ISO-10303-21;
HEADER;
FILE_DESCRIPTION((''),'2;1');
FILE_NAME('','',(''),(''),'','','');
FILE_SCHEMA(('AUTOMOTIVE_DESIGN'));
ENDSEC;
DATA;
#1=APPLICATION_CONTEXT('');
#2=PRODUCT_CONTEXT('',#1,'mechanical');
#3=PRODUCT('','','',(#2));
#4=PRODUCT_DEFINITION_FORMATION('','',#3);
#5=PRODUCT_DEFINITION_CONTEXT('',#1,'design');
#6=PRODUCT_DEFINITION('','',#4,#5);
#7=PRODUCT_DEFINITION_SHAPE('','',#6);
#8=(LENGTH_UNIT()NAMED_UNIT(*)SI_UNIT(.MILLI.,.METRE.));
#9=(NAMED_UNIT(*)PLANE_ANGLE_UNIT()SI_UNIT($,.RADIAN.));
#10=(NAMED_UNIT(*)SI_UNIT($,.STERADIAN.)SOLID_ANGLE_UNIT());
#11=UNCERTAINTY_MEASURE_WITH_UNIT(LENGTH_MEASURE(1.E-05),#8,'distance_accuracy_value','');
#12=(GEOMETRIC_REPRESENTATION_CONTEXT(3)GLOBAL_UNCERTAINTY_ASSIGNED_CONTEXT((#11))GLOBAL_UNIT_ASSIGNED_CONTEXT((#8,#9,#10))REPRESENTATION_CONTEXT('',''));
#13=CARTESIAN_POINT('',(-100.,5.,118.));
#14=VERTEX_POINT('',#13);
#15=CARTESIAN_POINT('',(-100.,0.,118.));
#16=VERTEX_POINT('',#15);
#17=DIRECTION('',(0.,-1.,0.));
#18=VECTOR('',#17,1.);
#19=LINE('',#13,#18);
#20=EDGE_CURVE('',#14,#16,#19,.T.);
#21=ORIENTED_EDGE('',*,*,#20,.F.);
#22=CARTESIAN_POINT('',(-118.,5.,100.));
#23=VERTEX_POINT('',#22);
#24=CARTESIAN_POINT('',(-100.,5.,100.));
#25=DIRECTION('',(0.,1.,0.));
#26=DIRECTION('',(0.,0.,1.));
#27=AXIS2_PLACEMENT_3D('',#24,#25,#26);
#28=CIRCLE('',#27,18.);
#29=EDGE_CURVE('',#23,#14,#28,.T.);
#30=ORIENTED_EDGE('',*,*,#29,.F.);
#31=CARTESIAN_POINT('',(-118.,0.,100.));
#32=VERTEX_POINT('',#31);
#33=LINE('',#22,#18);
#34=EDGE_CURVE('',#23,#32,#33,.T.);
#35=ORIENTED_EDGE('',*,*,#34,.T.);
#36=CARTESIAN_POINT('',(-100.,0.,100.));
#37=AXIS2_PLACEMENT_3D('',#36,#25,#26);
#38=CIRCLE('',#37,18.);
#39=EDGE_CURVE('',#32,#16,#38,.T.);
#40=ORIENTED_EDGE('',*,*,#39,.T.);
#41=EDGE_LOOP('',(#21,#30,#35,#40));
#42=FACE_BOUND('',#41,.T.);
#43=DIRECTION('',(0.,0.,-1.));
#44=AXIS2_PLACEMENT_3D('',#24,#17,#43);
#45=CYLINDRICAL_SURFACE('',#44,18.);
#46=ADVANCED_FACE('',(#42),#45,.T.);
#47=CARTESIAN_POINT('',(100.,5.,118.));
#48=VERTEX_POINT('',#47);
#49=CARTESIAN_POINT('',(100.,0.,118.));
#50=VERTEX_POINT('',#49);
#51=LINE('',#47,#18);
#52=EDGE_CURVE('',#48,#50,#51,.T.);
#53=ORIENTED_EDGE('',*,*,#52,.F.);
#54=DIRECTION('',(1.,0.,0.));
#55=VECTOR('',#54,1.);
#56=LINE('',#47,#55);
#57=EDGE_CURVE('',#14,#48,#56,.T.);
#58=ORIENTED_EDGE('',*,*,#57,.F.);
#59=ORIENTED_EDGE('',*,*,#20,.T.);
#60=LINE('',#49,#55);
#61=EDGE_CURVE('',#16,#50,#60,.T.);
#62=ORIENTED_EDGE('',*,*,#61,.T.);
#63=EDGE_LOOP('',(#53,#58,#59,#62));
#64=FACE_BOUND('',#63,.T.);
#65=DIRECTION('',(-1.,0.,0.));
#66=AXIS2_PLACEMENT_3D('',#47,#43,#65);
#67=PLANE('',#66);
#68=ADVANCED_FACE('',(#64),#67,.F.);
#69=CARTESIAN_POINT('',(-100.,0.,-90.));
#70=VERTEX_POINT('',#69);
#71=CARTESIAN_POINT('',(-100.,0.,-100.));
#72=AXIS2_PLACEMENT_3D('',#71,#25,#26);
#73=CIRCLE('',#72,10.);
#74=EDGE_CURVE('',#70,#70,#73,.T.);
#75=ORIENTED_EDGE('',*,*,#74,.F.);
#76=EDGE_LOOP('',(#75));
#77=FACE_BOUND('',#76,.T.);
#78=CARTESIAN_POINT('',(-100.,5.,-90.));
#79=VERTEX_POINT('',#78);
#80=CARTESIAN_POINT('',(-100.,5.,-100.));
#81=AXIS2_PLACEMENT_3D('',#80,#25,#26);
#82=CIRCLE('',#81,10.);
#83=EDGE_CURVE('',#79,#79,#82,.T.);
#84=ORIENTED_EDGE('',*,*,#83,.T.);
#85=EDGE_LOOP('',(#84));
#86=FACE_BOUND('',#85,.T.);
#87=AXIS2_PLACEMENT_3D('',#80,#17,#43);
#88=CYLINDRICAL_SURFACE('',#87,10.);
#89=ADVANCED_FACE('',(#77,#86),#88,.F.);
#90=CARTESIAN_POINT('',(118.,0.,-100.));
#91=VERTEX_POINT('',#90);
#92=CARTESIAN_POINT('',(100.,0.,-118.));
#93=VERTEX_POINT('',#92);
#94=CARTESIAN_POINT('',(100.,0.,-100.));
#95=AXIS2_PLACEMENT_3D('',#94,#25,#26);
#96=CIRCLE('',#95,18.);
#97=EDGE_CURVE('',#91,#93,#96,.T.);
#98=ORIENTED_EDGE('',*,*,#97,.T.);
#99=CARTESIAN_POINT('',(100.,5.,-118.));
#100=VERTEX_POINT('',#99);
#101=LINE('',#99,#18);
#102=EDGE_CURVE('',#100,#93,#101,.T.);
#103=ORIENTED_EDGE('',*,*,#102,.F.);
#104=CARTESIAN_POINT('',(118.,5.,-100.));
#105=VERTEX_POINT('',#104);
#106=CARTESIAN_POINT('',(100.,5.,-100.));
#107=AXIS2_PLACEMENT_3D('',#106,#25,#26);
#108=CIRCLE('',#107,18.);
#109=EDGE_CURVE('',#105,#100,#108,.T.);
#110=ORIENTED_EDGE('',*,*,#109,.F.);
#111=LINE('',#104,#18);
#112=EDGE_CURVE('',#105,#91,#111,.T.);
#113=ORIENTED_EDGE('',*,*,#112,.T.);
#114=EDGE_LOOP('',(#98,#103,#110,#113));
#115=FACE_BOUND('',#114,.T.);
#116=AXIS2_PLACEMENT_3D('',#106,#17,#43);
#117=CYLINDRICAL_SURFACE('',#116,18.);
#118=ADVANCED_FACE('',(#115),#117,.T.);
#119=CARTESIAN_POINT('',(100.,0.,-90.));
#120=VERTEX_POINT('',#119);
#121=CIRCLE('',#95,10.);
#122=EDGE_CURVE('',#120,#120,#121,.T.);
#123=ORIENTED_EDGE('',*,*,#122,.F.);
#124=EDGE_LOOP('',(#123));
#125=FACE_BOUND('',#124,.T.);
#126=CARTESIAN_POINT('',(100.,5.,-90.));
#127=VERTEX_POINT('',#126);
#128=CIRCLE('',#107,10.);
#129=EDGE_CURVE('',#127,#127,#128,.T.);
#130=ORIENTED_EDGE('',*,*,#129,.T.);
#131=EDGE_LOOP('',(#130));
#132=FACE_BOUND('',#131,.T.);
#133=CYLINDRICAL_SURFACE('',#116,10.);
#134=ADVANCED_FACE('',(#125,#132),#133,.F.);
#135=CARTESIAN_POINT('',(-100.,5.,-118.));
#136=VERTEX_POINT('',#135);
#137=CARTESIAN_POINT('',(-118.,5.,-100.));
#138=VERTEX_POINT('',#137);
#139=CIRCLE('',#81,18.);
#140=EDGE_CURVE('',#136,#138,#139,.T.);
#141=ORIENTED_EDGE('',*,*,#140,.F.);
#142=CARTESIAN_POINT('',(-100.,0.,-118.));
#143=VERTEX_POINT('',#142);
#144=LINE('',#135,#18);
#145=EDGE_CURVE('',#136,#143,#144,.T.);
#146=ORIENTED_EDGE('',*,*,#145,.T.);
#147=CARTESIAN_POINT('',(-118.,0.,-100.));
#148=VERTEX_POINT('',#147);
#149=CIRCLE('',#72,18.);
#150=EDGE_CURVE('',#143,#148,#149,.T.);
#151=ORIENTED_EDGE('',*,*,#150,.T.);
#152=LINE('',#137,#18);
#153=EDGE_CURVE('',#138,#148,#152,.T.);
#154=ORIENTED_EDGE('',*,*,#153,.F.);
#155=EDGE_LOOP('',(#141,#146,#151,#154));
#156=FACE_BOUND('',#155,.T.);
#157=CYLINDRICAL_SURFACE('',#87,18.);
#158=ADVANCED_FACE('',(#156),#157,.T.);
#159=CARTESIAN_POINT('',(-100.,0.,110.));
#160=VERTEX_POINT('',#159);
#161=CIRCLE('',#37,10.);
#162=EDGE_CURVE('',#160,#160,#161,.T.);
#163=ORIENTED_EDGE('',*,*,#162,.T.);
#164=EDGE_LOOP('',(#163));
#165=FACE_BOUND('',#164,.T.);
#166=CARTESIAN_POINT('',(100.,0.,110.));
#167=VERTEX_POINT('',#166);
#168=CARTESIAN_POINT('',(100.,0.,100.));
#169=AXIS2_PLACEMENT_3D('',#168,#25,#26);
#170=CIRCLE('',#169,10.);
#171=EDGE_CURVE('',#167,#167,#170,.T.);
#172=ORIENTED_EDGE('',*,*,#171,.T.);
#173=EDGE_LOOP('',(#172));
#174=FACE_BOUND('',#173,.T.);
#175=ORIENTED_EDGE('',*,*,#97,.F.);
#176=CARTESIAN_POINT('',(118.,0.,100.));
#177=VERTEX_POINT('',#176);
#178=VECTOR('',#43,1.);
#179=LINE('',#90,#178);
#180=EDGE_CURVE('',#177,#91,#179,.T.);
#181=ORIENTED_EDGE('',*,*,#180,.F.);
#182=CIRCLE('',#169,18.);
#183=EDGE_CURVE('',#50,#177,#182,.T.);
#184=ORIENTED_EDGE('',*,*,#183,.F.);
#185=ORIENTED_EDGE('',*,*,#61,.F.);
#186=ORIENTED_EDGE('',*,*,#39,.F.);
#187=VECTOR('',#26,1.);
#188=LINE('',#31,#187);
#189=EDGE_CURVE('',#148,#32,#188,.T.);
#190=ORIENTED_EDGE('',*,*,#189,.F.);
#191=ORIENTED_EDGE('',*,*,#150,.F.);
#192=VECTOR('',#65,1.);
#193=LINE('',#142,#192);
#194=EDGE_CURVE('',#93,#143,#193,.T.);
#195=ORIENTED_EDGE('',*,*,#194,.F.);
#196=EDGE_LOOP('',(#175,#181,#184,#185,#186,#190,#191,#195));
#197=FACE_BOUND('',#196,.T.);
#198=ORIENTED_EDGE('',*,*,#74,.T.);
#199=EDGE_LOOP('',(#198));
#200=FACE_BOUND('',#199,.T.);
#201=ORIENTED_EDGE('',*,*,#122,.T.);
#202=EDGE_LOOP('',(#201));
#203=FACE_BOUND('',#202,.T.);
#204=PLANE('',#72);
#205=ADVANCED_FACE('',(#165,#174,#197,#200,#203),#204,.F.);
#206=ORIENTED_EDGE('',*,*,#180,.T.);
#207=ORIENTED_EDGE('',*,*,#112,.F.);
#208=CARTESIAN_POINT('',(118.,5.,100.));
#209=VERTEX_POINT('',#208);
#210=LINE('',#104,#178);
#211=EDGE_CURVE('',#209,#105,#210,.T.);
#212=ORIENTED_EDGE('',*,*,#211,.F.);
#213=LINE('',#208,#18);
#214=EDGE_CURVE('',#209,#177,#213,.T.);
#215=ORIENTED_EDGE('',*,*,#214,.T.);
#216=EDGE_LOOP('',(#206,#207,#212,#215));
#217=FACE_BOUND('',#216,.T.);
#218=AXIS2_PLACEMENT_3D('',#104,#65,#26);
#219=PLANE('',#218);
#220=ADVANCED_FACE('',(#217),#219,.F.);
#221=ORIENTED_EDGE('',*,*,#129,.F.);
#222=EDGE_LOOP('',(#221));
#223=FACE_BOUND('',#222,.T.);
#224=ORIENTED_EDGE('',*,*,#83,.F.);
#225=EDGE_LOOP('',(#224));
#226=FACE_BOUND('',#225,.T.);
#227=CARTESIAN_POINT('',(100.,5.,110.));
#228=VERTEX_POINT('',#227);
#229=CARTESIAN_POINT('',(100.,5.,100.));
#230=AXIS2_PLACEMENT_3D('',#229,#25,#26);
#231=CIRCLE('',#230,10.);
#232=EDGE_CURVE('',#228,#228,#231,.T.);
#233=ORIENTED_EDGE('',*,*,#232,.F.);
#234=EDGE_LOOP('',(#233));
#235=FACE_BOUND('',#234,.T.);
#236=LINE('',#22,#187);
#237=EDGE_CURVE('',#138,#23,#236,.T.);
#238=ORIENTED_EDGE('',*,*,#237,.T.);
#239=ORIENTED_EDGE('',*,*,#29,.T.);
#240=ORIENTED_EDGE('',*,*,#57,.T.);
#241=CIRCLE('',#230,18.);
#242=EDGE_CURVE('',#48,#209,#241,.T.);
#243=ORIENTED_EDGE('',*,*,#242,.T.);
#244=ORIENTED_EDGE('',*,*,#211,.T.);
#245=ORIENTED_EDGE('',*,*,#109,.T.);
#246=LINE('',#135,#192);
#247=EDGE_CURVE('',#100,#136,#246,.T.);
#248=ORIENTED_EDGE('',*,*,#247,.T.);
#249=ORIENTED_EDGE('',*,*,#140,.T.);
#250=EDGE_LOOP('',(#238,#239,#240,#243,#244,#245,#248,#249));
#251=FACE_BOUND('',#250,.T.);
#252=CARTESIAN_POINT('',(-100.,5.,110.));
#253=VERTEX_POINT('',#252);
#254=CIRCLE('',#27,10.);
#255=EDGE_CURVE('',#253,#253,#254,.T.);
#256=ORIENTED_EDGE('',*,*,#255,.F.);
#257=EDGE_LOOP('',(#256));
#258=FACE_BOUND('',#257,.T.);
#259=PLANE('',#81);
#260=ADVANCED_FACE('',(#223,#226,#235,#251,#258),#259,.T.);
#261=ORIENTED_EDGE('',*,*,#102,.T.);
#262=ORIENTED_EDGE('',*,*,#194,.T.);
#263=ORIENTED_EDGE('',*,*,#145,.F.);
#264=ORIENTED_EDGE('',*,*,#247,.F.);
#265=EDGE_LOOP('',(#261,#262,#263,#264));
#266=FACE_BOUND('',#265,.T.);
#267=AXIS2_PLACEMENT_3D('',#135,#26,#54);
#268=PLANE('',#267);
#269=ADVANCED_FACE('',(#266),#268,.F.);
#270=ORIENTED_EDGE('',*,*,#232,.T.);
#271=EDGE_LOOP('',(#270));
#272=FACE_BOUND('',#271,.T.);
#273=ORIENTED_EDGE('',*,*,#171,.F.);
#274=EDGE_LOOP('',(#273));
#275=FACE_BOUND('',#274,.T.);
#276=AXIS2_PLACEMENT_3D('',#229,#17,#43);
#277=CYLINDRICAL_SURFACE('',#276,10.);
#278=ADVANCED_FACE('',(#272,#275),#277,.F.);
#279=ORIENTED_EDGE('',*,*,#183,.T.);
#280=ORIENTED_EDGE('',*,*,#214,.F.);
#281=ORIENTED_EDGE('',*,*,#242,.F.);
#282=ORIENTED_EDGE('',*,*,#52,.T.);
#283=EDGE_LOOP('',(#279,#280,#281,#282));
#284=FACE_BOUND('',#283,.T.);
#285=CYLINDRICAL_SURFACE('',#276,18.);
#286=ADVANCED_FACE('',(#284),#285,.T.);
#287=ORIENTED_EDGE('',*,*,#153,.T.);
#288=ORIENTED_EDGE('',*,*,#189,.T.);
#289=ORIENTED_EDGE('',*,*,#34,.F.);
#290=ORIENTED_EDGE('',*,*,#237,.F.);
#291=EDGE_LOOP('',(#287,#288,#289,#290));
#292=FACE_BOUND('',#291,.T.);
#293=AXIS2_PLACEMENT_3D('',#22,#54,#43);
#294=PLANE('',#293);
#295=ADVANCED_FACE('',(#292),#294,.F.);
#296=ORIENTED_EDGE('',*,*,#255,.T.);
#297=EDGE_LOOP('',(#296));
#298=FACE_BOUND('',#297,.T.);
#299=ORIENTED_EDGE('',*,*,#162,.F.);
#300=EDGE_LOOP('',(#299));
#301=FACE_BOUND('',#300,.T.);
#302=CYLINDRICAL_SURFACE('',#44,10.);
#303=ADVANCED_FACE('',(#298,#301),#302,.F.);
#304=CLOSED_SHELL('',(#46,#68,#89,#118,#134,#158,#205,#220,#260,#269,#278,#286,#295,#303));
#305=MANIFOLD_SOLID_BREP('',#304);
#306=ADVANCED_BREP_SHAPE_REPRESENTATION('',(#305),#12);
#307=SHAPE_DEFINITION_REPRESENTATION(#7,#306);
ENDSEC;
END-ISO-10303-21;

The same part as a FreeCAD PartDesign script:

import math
import FreeCAD as App
import Part
import Sketcher

V = App.Vector
Q = App.Units.Quantity

doc = App.newDocument("Part")
body = doc.addObject("PartDesign::Body", "Body")

# Sketch on XZ plane
sketch1 = doc.addObject("Sketcher::SketchObject", "Sketch")
body.addObject(sketch1)
sketch1.AttachmentSupport = (doc.XZ_Plane, [""])
sketch1.MapMode = "FlatFace"
sketch1.addGeometry([
    Part.LineSegment(V(100, -118, 0), V(-100, -118, 0)),  # 0
    Part.ArcOfCircle(Part.Circle(V(-100, -100, 0), V(0, 0, 1), 18), math.radians(-180), math.radians(-90)),  # 1
    Part.LineSegment(V(-118, -100, 0), V(-118, 100, 0)),  # 2
    Part.ArcOfCircle(Part.Circle(V(-100, 100, 0), V(0, 0, 1), 18), math.radians(90), math.radians(180)),  # 3
    Part.LineSegment(V(-100, 118, 0), V(100, 118, 0)),  # 4
    Part.ArcOfCircle(Part.Circle(V(100, 100, 0), V(0, 0, 1), 18), math.radians(0), math.radians(90)),  # 5
    Part.LineSegment(V(118, 100, 0), V(118, -100, 0)),  # 6
    Part.ArcOfCircle(Part.Circle(V(100, -100, 0), V(0, 0, 1), 18), math.radians(-90), math.radians(0)),  # 7
    Part.Circle(V(100, 100, 0), V(0, 0, 1), 10),  # 8
    Part.Circle(V(-100, 100, 0), V(0, 0, 1), 10),  # 9
    Part.Circle(V(100, -100, 0), V(0, 0, 1), 10),  # 10
    Part.Circle(V(-100, -100, 0), V(0, 0, 1), 10),  # 11
], False)
sketch1.addConstraint([
    Sketcher.Constraint("Tangent", 0, 2, 1, 2),
    Sketcher.Constraint("Tangent", 1, 1, 2, 1),
    Sketcher.Constraint("Tangent", 2, 2, 3, 2),
    Sketcher.Constraint("Tangent", 3, 1, 4, 1),
    Sketcher.Constraint("Tangent", 4, 2, 5, 2),
    Sketcher.Constraint("Tangent", 5, 1, 6, 1),
    Sketcher.Constraint("Tangent", 6, 2, 7, 2),
    Sketcher.Constraint("Tangent", 7, 1, 0, 1),
    Sketcher.Constraint("Horizontal", 0),
    Sketcher.Constraint("Vertical", 2),
    Sketcher.Constraint("Horizontal", 4),
    Sketcher.Constraint("Vertical", 6),
    Sketcher.Constraint("Coincident", 8, 3, 5, 3),
    Sketcher.Constraint("Coincident", 9, 3, 3, 3),
    Sketcher.Constraint("Coincident", 10, 3, 7, 3),
    Sketcher.Constraint("Coincident", 11, 3, 1, 3),
    Sketcher.Constraint("Equal", 1, 3),
    Sketcher.Constraint("Equal", 3, 5),
    Sketcher.Constraint("Equal", 5, 7),
    Sketcher.Constraint("Equal", 8, 9),
    Sketcher.Constraint("Equal", 9, 10),
    Sketcher.Constraint("Equal", 10, 11),
    Sketcher.Constraint("Symmetric", 1, 3, 5, 3, -1, 1),
    Sketcher.Constraint("Equal", 4, 2),
    Sketcher.Constraint("Diameter", 8, Q("20 mm")),
    Sketcher.Constraint("Radius", 1, Q("18 mm")),
    Sketcher.Constraint("DistanceX", 0, 2, 0, 1, Q("200 mm")),
])
pad1 = doc.addObject("PartDesign::Pad", "Pad")
body.addObject(pad1)
pad1.Profile = sketch1
pad1.Length = 5
pad1.Reversed = True

doc.recompute()
